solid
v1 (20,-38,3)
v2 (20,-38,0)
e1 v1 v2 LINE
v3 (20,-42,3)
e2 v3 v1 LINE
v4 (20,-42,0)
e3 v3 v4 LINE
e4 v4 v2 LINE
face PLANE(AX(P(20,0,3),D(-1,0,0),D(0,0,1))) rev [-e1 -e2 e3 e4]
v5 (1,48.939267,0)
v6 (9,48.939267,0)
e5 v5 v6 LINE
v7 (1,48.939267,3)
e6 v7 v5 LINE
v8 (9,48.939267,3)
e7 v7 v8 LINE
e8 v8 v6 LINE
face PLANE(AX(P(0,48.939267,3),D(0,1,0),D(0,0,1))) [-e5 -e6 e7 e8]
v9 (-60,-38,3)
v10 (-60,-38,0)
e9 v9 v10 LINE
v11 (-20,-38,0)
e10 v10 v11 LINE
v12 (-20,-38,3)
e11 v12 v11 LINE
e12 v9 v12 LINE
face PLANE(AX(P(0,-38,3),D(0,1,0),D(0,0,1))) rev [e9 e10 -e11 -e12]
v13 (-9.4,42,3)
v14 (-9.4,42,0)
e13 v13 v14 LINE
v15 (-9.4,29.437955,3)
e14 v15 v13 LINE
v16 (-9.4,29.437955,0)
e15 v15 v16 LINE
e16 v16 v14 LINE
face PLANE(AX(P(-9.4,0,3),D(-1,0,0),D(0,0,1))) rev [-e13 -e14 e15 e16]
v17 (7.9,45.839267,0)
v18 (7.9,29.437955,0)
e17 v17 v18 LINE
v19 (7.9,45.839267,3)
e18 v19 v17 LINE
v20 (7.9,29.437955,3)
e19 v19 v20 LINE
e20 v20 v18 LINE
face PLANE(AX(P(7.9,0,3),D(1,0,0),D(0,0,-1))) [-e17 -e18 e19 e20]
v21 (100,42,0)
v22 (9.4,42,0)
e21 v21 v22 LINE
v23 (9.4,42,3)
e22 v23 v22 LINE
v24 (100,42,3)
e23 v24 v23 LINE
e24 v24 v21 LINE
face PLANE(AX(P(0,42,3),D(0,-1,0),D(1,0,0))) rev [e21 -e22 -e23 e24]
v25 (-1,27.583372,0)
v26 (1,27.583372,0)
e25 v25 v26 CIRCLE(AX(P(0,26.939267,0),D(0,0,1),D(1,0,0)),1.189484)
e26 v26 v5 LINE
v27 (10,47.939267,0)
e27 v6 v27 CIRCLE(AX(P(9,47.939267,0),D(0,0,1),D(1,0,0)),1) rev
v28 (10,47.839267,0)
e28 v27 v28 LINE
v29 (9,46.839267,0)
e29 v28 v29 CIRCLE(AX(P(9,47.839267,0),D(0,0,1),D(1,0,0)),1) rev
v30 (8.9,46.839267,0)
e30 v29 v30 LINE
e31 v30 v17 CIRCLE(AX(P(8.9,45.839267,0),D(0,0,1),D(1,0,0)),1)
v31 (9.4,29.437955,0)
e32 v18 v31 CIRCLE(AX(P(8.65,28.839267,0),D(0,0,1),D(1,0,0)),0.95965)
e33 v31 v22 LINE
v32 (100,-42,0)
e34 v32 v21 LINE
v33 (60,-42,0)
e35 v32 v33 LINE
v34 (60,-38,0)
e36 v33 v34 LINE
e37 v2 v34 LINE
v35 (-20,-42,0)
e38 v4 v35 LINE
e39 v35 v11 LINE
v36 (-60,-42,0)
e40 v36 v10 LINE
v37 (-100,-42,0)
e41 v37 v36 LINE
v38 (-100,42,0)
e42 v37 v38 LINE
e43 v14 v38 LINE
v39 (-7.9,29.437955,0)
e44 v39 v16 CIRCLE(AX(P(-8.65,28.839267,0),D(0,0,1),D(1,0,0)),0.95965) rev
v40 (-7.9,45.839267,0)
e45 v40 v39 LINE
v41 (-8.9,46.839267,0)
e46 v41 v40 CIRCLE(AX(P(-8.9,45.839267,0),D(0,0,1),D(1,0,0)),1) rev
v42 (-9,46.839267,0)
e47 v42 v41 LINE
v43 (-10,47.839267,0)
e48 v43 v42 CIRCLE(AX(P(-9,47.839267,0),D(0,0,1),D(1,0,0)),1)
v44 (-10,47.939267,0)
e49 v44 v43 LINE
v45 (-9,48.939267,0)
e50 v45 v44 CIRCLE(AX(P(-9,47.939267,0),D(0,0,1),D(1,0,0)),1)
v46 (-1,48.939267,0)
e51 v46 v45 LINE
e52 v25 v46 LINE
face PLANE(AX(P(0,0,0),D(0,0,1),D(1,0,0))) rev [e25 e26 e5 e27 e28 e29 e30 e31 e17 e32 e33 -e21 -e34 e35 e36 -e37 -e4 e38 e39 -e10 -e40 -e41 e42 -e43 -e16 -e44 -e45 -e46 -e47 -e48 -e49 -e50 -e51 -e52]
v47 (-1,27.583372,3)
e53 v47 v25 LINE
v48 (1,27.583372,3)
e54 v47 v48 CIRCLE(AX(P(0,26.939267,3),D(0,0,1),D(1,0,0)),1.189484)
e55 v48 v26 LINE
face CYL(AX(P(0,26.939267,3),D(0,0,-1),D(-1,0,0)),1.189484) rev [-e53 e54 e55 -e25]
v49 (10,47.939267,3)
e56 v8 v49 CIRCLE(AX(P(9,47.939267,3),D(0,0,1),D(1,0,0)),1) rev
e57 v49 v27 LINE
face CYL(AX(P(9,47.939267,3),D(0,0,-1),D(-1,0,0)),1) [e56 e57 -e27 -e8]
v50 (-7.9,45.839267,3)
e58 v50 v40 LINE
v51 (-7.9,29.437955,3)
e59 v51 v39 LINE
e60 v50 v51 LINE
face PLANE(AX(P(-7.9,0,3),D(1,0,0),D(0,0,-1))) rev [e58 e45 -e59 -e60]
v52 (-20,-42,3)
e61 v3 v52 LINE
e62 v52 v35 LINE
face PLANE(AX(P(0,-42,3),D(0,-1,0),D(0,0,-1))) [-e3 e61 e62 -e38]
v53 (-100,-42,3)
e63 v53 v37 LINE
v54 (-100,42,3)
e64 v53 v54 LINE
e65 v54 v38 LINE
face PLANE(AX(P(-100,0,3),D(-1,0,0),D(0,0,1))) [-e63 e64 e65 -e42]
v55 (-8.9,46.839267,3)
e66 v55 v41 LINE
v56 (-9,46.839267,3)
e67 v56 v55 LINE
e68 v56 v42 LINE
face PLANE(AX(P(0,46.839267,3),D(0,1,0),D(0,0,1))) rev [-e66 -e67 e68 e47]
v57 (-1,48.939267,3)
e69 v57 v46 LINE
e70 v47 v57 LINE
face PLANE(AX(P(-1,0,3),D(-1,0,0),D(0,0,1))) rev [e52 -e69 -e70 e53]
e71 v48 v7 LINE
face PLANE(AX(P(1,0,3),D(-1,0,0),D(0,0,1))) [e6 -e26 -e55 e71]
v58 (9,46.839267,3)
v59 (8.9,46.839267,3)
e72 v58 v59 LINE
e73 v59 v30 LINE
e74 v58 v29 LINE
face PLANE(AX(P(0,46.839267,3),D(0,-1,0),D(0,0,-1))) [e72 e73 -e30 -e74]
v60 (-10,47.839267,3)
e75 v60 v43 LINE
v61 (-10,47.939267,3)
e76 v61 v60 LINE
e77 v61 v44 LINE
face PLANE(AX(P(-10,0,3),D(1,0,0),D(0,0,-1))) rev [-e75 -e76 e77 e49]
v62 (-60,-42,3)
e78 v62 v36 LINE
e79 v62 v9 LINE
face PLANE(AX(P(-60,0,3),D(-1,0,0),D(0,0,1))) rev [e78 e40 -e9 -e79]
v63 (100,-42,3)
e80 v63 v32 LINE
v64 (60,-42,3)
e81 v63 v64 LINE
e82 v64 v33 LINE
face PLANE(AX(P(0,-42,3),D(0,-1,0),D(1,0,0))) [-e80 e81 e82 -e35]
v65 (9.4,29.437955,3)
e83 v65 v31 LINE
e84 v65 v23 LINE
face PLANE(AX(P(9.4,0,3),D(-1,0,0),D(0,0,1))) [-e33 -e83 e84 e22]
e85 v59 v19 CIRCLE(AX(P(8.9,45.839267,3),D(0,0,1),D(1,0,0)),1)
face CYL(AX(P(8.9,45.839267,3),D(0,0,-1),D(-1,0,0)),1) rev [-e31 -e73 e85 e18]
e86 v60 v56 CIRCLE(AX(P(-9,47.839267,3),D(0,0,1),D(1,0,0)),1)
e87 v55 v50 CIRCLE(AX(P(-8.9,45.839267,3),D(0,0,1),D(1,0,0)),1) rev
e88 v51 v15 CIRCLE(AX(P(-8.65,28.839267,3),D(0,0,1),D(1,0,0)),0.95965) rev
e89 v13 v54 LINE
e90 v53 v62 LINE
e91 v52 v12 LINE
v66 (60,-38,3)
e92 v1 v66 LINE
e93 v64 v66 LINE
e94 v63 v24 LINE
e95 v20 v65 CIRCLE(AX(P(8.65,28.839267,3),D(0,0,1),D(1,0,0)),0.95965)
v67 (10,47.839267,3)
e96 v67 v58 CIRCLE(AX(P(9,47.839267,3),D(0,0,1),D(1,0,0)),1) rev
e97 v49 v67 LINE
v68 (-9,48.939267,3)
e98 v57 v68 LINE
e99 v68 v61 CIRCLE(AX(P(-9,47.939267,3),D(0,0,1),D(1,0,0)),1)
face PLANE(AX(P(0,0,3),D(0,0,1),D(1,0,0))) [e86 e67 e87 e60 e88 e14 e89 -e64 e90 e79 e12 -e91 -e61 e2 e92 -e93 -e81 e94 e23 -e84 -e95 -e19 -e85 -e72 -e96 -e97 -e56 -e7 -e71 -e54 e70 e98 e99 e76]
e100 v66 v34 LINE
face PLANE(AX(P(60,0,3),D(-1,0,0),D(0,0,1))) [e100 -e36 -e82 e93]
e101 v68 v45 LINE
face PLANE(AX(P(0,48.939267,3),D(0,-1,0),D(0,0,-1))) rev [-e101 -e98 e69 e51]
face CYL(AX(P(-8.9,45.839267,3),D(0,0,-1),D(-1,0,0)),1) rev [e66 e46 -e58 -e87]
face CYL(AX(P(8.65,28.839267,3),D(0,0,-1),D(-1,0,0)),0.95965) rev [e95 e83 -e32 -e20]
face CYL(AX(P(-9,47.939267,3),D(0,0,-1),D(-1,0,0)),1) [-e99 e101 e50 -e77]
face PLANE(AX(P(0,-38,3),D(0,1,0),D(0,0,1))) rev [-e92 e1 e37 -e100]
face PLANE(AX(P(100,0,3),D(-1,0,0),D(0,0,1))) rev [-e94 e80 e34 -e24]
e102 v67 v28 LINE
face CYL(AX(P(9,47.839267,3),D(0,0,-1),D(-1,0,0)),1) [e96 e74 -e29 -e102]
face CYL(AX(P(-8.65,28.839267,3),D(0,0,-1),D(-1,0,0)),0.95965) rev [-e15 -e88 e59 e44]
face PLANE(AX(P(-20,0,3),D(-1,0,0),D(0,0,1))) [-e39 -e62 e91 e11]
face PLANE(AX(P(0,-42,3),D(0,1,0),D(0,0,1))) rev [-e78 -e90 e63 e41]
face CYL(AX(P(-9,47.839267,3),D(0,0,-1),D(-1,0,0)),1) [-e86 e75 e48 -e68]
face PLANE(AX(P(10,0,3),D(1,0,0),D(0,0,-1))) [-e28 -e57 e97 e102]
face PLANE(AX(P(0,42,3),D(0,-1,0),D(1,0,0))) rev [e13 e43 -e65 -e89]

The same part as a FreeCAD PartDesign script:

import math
import FreeCAD as App
import Part
import Sketcher
from FreeCAD import Vector
Q = App.Units.Quantity

doc = App.newDocument("Part")
params = doc.addObject("Spreadsheet::Sheet", "Params")
for row, (alias, value) in enumerate([
    ("sketch1_radius", "1 mm"),
    ("sketch1_width", "40 mm"),
    ("sketch1_width2", "8 mm"),
    ("sketch1_height", "4 mm"),
    ("sketch1_height2", "84 mm"),
    ("pad1_length", "3 mm"),
], start=1):
    params.set(f"A{row}", alias)
    params.set(f"B{row}", "=" + value)
    params.setAlias(f"B{row}", alias)

body = doc.addObject("PartDesign::Body", "Body")

# Sketch on XY plane
sketch1 = body.newObject("Sketcher::SketchObject", "Sketch")
sketch1.AttachmentSupport = (doc.getObject("XY_Plane"), [""])
sketch1.MapMode = "FlatFace"
sketch1.addGeometry([
    Part.LineSegment(Vector(-20, -38, 0), Vector(-20, -42, 0)),  # 0
    Part.LineSegment(Vector(-20, -42, 0), Vector(20, -42, 0)),  # 1
    Part.LineSegment(Vector(20, -42, 0), Vector(20, -38, 0)),  # 2
    Part.LineSegment(Vector(20, -38, 0), Vector(60, -38, 0)),  # 3
    Part.LineSegment(Vector(60, -38, 0), Vector(60, -42, 0)),  # 4
    Part.LineSegment(Vector(60, -42, 0), Vector(100, -42, 0)),  # 5
    Part.LineSegment(Vector(100, -42, 0), Vector(100, 42, 0)),  # 6
    Part.LineSegment(Vector(100, 42, 0), Vector(9.4, 42, 0)),  # 7
    Part.LineSegment(Vector(9.4, 42, 0), Vector(9.4, 29.44, 0)),  # 8
    Part.ArcOfCircle(Part.Circle(Vector(8.65, 28.84, 0), Vector(0, 0, 1), 0.96), math.radians(141), math.radians(399)),  # 9
    Part.LineSegment(Vector(7.9, 29.44, 0), Vector(7.9, 45.84, 0)),  # 10
    Part.ArcOfCircle(Part.Circle(Vector(8.9, 45.84, 0), Vector(0, 0, 1), 1), math.radians(90), math.radians(180)),  # 11
    Part.LineSegment(Vector(8.9, 46.84, 0), Vector(9, 46.84, 0)),  # 12
    Part.ArcOfCircle(Part.Circle(Vector(9, 47.84, 0), Vector(0, 0, 1), 1), math.radians(-90), math.radians(0)),  # 13
    Part.LineSegment(Vector(10, 47.84, 0), Vector(10, 47.94, 0)),  # 14
    Part.ArcOfCircle(Part.Circle(Vector(9, 47.94, 0), Vector(0, 0, 1), 1), math.radians(0), math.radians(90)),  # 15
    Part.LineSegment(Vector(9, 48.94, 0), Vector(1, 48.94, 0)),  # 16
    Part.LineSegment(Vector(1, 48.94, 0), Vector(1, 27.58, 0)),  # 17
    Part.ArcOfCircle(Part.Circle(Vector(0, 26.94, 0), Vector(0, 0, 1), 1.19), math.radians(147), math.radians(393)),  # 18
    Part.LineSegment(Vector(-1, 27.58, 0), Vector(-1, 48.94, 0)),  # 19
    Part.LineSegment(Vector(-1, 48.94, 0), Vector(-9, 48.94, 0)),  # 20
    Part.ArcOfCircle(Part.Circle(Vector(-9, 47.94, 0), Vector(0, 0, 1), 1), math.radians(90), math.radians(180)),  # 21
    Part.LineSegment(Vector(-10, 47.94, 0), Vector(-10, 47.84, 0)),  # 22
    Part.ArcOfCircle(Part.Circle(Vector(-9, 47.84, 0), Vector(0, 0, 1), 1), math.radians(-180), math.radians(-90)),  # 23
    Part.LineSegment(Vector(-9, 46.84, 0), Vector(-8.9, 46.84, 0)),  # 24
    Part.ArcOfCircle(Part.Circle(Vector(-8.9, 45.84, 0), Vector(0, 0, 1), 1), math.radians(0), math.radians(90)),  # 25
    Part.LineSegment(Vector(-7.9, 45.84, 0), Vector(-7.9, 29.44, 0)),  # 26
    Part.ArcOfCircle(Part.Circle(Vector(-8.65, 28.84, 0), Vector(0, 0, 1), 0.96), math.radians(141), math.radians(399)),  # 27
    Part.LineSegment(Vector(-9.4, 29.44, 0), Vector(-9.4, 42, 0)),  # 28
    Part.LineSegment(Vector(-9.4, 42, 0), Vector(-100, 42, 0)),  # 29
    Part.LineSegment(Vector(-100, 42, 0), Vector(-100, -42, 0)),  # 30
    Part.LineSegment(Vector(-100, -42, 0), Vector(-60, -42, 0)),  # 31
    Part.LineSegment(Vector(-60, -42, 0), Vector(-60, -38, 0)),  # 32
    Part.LineSegment(Vector(-60, -38, 0), Vector(-20, -38, 0)),  # 33
], False)
sketch1.addConstraint([
    Sketcher.Constraint("Coincident", 0, 2, 1, 1),
    Sketcher.Constraint("Coincident", 1, 2, 2, 1),
    Sketcher.Constraint("Coincident", 2, 2, 3, 1),
    Sketcher.Constraint("Coincident", 3, 2, 4, 1),
    Sketcher.Constraint("Coincident", 4, 2, 5, 1),
    Sketcher.Constraint("Coincident", 5, 2, 6, 1),
    Sketcher.Constraint("Coincident", 6, 2, 7, 1),
    Sketcher.Constraint("Coincident", 7, 2, 8, 1),
    Sketcher.Constraint("Coincident", 8, 2, 9, 2),
    Sketcher.Constraint("Coincident", 9, 1, 10, 1),
    Sketcher.Constraint("Tangent", 10, 2, 11, 2),
    Sketcher.Constraint("Tangent", 11, 1, 12, 1),
    Sketcher.Constraint("Tangent", 12, 2, 13, 1),
    Sketcher.Constraint("Tangent", 13, 2, 14, 1),
    Sketcher.Constraint("Tangent", 14, 2, 15, 1),
    Sketcher.Constraint("Tangent", 15, 2, 16, 1),
    Sketcher.Constraint("Coincident", 16, 2, 17, 1),
    Sketcher.Constraint("Coincident", 17, 2, 18, 2),
    Sketcher.Constraint("Coincident", 18, 1, 19, 1),
    Sketcher.Constraint("Coincident", 19, 2, 20, 1),
    Sketcher.Constraint("Tangent", 20, 2, 21, 1),
    Sketcher.Constraint("Tangent", 21, 2, 22, 1),
    Sketcher.Constraint("Tangent", 22, 2, 23, 1),
    Sketcher.Constraint("Tangent", 23, 2, 24, 1),
    Sketcher.Constraint("Tangent", 24, 2, 25, 2),
    Sketcher.Constraint("Tangent", 25, 1, 26, 1),
    Sketcher.Constraint("Coincident", 26, 2, 27, 2),
    Sketcher.Constraint("Coincident", 27, 1, 28, 1),
    Sketcher.Constraint("Coincident", 28, 2, 29, 1),
    Sketcher.Constraint("Coincident", 29, 2, 30, 1),
    Sketcher.Constraint("Coincident", 30, 2, 31, 1),
    Sketcher.Constraint("Coincident", 31, 2, 32, 1),
    Sketcher.Constraint("Coincident", 32, 2, 33, 1),
    Sketcher.Constraint("Coincident", 33, 2, 0, 1),
    Sketcher.Constraint("Vertical", 0),
    Sketcher.Constraint("Horizontal", 1),
    Sketcher.Constraint("Vertical", 2),
    Sketcher.Constraint("Horizontal", 3),
    Sketcher.Constraint("Vertical", 4),
    Sketcher.Constraint("Horizontal", 5),
    Sketcher.Constraint("Vertical", 6),
    Sketcher.Constraint("Horizontal", 7),
    Sketcher.Constraint("Vertical", 8),
    Sketcher.Constraint("Vertical", 10),
    Sketcher.Constraint("Horizontal", 12),
    Sketcher.Constraint("Vertical", 14),
    Sketcher.Constraint("Horizontal", 16),
    Sketcher.Constraint("Vertical", 17),
    Sketcher.Constraint("Vertical", 19),
    Sketcher.Constraint("Horizontal", 20),
    Sketcher.Constraint("Vertical", 22),
    Sketcher.Constraint("Horizontal", 24),
    Sketcher.Constraint("Vertical", 26),
    Sketcher.Constraint("Vertical", 28),
    Sketcher.Constraint("Horizontal", 29),
    Sketcher.Constraint("Vertical", 30),
    Sketcher.Constraint("Horizontal", 31),
    Sketcher.Constraint("Vertical", 32),
    Sketcher.Constraint("Horizontal", 33),
    Sketcher.Constraint("Equal", 11, 13),
    Sketcher.Constraint("Equal", 13, 15),
    Sketcher.Constraint("Equal", 15, 21),
    Sketcher.Constraint("Equal", 21, 23),
    Sketcher.Constraint("Equal", 23, 25),
    Sketcher.Constraint("Equal", 9, 27),
    Sketcher.Constraint("Symmetric", 5, 2, 29, 2, -1, 1),
    Sketcher.Constraint("Symmetric", 15, 3, 21, 3, -2),
    Sketcher.Constraint("Symmetric", 11, 3, 25, 3, -2),
    Sketcher.Constraint("Symmetric", 9, 3, 27, 3, -2),
    Sketcher.Constraint("Symmetric", 17, 2, 18, 1, -2),
    Sketcher.Constraint("Symmetric", 7, 2, 28, 2, -2),
    Sketcher.Constraint("Symmetric", 4, 2, 31, 2, -2),
    Sketcher.Constraint("Symmetric", 2, 2, 33, 2, -2),
    Sketcher.Constraint("Horizontal", 1, 2, 4, 2),
    Sketcher.Constraint("Horizontal", 8, 2, 9, 1),
    Sketcher.Constraint("Equal", 1, 3),
    Sketcher.Constraint("Equal", 3, 5),
    Sketcher.Constraint("Equal", 24, 14),
    Sketcher.Constraint("Radius", 11, Q("1 mm")),
    Sketcher.Constraint("DistanceX", 1, 1, 1, 2, Q("40 mm")),
    Sketcher.Constraint("DistanceX", 16, 2, 16, 1, Q("8 mm")),
    Sketcher.Constraint("DistanceY", 0, 2, 0, 1, Q("4 mm")),
    Sketcher.Constraint("DistanceY", 6, 1, 6, 2, Q("84 mm")),
    Sketcher.Constraint("DistanceX", 7, 2, 7, 1, Q("90.6 mm")),
    Sketcher.Constraint("DistanceX", 12, 1, 12, 2, Q("0.1 mm")),
    Sketcher.Constraint("DistanceX", -1, 1, 13, 3, Q("9 mm")),
    Sketcher.Constraint("DistanceY", 9, 3, 11, 3, Q("17 mm")),
    Sketcher.Constraint("DistanceY", 18, 3, 15, 3, Q("21 mm")),
    Sketcher.Constraint("Radius", 9, Q("0.95965 mm")),
    Sketcher.Constraint("Radius", 18, Q("1.189484 mm")),
    Sketcher.Constraint("DistanceY", 8, 2, 8, 1, Q("12.562045 mm")),
])
sketch1.setExpression("Constraints[78]", "Params.sketch1_radius")
sketch1.setExpression("Constraints[79]", "Params.sketch1_width")
sketch1.setExpression("Constraints[80]", "Params.sketch1_width2")
sketch1.setExpression("Constraints[81]", "Params.sketch1_height")
sketch1.setExpression("Constraints[82]", "Params.sketch1_height2")
pad1 = body.newObject("PartDesign::Pad", "Pad")
pad1.Profile = sketch1
pad1.setExpression("Length", "Params.pad1_length")

doc.recompute()
